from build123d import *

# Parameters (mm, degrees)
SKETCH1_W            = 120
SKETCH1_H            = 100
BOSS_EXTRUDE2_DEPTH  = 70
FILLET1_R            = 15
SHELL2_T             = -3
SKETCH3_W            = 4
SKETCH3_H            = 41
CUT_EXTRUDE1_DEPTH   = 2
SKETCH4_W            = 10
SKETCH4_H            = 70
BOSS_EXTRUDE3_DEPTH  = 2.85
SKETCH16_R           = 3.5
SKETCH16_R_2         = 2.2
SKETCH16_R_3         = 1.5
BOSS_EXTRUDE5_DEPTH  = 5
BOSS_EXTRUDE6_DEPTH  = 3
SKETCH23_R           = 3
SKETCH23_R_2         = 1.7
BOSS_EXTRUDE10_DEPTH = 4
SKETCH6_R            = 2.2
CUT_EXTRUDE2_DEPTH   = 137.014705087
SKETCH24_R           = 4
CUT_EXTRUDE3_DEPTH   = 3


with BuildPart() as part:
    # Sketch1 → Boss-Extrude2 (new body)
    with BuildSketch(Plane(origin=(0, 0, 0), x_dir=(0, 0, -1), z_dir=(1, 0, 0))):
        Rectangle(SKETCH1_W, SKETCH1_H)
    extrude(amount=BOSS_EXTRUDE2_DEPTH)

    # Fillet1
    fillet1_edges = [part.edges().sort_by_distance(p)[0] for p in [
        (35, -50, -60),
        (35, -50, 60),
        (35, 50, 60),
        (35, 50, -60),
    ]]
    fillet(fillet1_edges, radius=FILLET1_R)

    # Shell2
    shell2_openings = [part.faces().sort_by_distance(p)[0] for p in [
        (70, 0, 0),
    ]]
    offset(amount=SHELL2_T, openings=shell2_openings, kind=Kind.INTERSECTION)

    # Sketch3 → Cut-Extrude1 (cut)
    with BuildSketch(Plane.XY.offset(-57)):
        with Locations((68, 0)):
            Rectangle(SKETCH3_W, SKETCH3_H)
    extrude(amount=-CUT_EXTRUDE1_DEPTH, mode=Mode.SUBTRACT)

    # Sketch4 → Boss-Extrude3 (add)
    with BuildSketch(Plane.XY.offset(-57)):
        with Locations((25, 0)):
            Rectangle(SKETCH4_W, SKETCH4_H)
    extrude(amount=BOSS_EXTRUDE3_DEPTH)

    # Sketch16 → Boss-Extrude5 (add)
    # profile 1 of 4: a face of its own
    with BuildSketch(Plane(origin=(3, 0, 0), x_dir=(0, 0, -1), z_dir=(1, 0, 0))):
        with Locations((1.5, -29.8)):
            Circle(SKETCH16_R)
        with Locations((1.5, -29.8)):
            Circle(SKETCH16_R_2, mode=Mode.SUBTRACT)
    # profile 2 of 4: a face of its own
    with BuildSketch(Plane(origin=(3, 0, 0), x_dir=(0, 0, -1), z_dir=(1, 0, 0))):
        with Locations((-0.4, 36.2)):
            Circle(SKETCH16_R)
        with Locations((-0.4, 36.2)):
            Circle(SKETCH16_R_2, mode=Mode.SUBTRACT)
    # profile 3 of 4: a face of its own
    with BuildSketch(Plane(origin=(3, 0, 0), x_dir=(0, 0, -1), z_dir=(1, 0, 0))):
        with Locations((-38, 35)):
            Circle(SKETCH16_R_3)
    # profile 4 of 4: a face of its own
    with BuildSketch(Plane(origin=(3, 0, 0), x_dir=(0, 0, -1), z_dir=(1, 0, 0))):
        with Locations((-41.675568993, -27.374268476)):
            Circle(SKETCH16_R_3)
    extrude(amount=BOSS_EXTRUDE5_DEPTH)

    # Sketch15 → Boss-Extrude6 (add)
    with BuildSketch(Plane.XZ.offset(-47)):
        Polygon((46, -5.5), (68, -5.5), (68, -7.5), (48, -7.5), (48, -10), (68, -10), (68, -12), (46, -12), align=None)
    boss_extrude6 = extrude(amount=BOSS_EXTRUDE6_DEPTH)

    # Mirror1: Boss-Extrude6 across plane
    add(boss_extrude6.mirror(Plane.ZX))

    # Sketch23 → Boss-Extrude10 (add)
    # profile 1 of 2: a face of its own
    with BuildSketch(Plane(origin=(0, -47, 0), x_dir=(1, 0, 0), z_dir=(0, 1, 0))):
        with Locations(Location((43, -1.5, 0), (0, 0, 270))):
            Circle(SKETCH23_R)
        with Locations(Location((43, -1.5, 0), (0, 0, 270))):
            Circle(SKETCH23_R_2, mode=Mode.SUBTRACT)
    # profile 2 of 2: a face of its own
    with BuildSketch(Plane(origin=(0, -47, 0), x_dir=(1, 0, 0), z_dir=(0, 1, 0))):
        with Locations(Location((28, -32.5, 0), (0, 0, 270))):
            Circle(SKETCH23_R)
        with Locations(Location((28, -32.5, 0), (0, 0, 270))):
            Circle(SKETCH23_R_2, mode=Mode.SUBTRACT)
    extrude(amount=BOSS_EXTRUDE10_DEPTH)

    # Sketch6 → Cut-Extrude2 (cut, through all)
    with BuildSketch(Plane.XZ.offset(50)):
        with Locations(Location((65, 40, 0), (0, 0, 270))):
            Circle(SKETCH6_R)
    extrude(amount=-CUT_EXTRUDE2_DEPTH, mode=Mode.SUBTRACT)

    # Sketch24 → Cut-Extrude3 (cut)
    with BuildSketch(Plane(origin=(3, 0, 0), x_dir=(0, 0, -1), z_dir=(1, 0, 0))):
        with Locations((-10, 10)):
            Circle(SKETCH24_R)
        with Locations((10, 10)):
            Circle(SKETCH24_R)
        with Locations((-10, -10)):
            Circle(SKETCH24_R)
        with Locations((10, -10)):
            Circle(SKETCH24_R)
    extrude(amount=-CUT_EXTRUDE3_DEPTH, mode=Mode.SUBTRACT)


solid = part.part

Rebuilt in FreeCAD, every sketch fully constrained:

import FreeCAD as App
import Part
import Sketcher

V = App.Vector
Q = App.Units.Quantity


def edges_at(feature, points):
    """Names of the edges that pass closest to the given points."""
    edges = feature.Shape.Edges
    near = lambda p: min(range(len(edges)), key=lambda i: edges[i].distToShape(Part.Vertex(*p))[0])
    return sorted({f"Edge{near(p) + 1}" for p in points})


def faces_at(feature, points):
    """Names of the faces that lie closest to the given points."""
    faces = feature.Shape.Faces
    near = lambda p: min(range(len(faces)), key=lambda i: faces[i].distToShape(Part.Vertex(*p))[0])
    return sorted({f"Face{near(p) + 1}" for p in points})


def add_polygon(sketch, points):
    """Adds a closed chain of lines whose ends are joined by coincident constraints."""
    first, n = sketch.GeometryCount, len(points)
    for a, b in zip(points, points[1:] + points[:1]):
        sketch.addGeometry(Part.LineSegment(App.Vector(*a, 0), App.Vector(*b, 0)), False)
    for i in range(n):
        sketch.addConstraint(Sketcher.Constraint("Coincident", first + i, 2, first + (i + 1) % n, 1))

doc = App.newDocument("Part")
body = doc.addObject("PartDesign::Body", "Body")

# Sketch on YZ plane
sketch1 = body.newObject("Sketcher::SketchObject", "Sketch")
sketch1.AttachmentSupport = (doc.getObject("YZ_Plane"), [""])
sketch1.MapMode = "FlatFace"
add_polygon(sketch1, [(50, 60), (-50, 60), (-50, -60), (50, -60)])  # lines 0-3
sketch1.addConstraint([
    Sketcher.Constraint("Horizontal", 0),
    Sketcher.Constraint("Vertical", 1),
    Sketcher.Constraint("Horizontal", 2),
    Sketcher.Constraint("Vertical", 3),
    Sketcher.Constraint("Symmetric", 0, 2, 2, 2, -1, 1),
    Sketcher.Constraint("DistanceX", 0, 2, 0, 1, Q("100 mm")),
    Sketcher.Constraint("DistanceY", 1, 2, 1, 1, Q("120 mm")),
])
pad1 = body.newObject("PartDesign::Pad", "Pad")
pad1.Profile = sketch1
pad1.Length = 70
doc.recompute()

fillet = body.newObject("PartDesign::Fillet", "Fillet")
fillet.Base = (pad1, edges_at(pad1, [
    (35, -50, -60),
    (35, -50, 60),
    (35, 50, 60),
    (35, 50, -60),
]))
fillet.Radius = 15
doc.recompute()

thickness = body.newObject("PartDesign::Thickness", "Thickness")
thickness.Base = (fillet, faces_at(fillet, [(70, 0, 0)]))
thickness.Value = 3
thickness.Reversed = True
thickness.Join = "Intersection"

# Sketch on XY plane
sketch2 = body.newObject("Sketcher::SketchObject", "Sketch001")
sketch2.AttachmentSupport = (doc.getObject("XY_Plane"), [""])
sketch2.MapMode = "FlatFace"
sketch2.AttachmentOffset = App.Placement(V(0, 0, -57), App.Rotation())
add_polygon(sketch2, [(66, 20.5), (66, -20.5), (70, -20.5), (70, 20.5)])  # lines 0-3
sketch2.addConstraint([
    Sketcher.Constraint("Vertical", 0),
    Sketcher.Constraint("Horizontal", 1),
    Sketcher.Constraint("Vertical", 2),
    Sketcher.Constraint("Horizontal", 3),
    Sketcher.Constraint("DistanceX", 1, 1, 1, 2, Q("4 mm")),
    Sketcher.Constraint("DistanceY", 0, 2, 0, 1, Q("41 mm")),
    Sketcher.Constraint("DistanceX", -1, 1, 0, 2, Q("66 mm")),
    Sketcher.Constraint("DistanceY", 0, 2, -1, 1, Q("20.5 mm")),
])
pocket1 = body.newObject("PartDesign::Pocket", "Pocket")
pocket1.Profile = sketch2
pocket1.Length = 2

# Sketch on XY plane
sketch3 = body.newObject("Sketcher::SketchObject", "Sketch002")
sketch3.AttachmentSupport = (doc.getObject("XY_Plane"), [""])
sketch3.MapMode = "FlatFace"
sketch3.AttachmentOffset = App.Placement(V(0, 0, -57), App.Rotation())
add_polygon(sketch3, [(20, 35), (20, -35), (30, -35), (30, 35)])  # lines 0-3
sketch3.addConstraint([
    Sketcher.Constraint("Vertical", 0),
    Sketcher.Constraint("Horizontal", 1),
    Sketcher.Constraint("Vertical", 2),
    Sketcher.Constraint("Horizontal", 3),
    Sketcher.Constraint("DistanceX", 1, 1, 1, 2, Q("10 mm")),
    Sketcher.Constraint("DistanceY", 0, 2, 0, 1, Q("70 mm")),
    Sketcher.Constraint("DistanceX", -1, 1, 0, 2, Q("20 mm")),
    Sketcher.Constraint("DistanceY", 0, 2, -1, 1, Q("35 mm")),
])
pad2 = body.newObject("PartDesign::Pad", "Pad001")
pad2.Profile = sketch3
pad2.Length = 2.85

# Sketch on YZ plane
sketch4 = body.newObject("Sketcher::SketchObject", "Sketch003")
sketch4.AttachmentSupport = (doc.getObject("YZ_Plane"), [""])
sketch4.MapMode = "FlatFace"
sketch4.AttachmentOffset = App.Placement(V(0, 0, 3), App.Rotation())
sketch4.addGeometry([
    Part.Circle(V(-29.8, -1.5, 0), V(0, 0, 1), 3.5),  # 0
    Part.Circle(V(-29.8, -1.5, 0), V(0, 0, 1), 2.2),  # 1
    Part.Circle(V(36.2, 0.4, 0), V(0, 0, 1), 3.5),  # 2
    Part.Circle(V(36.2, 0.4, 0), V(0, 0, 1), 2.2),  # 3
    Part.Circle(V(35, 38, 0), V(0, 0, 1), 1.5),  # 4
    Part.Circle(V(-27.374268, 41.675569, 0), V(0, 0, 1), 1.5),  # 5
], False)
sketch4.addConstraint([
    Sketcher.Constraint("Coincident", 1, 3, 0, 3),
    Sketcher.Constraint("Coincident", 3, 3, 2, 3),
    Sketcher.Constraint("Equal", 0, 2),
    Sketcher.Constraint("Equal", 1, 3),
    Sketcher.Constraint("Equal", 4, 5),
    Sketcher.Constraint("Diameter", 0, Q("7 mm")),
    Sketcher.Constraint("Diameter", 4, Q("3 mm")),
    Sketcher.Constraint("Diameter", 1, Q("4.4 mm")),
    Sketcher.Constraint("DistanceX", -1, 1, 4, 3, Q("35 mm")),
    Sketcher.Constraint("DistanceY", -1, 1, 4, 3, Q("38 mm")),
    Sketcher.Constraint("DistanceX", 0, 3, 2, 3, Q("66 mm")),
    Sketcher.Constraint("DistanceX", 0, 3, -1, 1, Q("29.8 mm")),
    Sketcher.Constraint("DistanceY", 0, 3, -1, 1, Q("1.5 mm")),
    Sketcher.Constraint("DistanceY", -1, 1, 2, 3, Q("0.4 mm")),
    Sketcher.Constraint("DistanceX", 5, 3, -1, 1, Q("27.374268 mm")),
    Sketcher.Constraint("DistanceY", -1, 1, 5, 3, Q("41.675569 mm")),
])
pad3 = body.newObject("PartDesign::Pad", "Pad002")
pad3.Profile = sketch4
pad3.Length = 5

# Sketch on XZ plane
sketch5 = body.newObject("Sketcher::SketchObject", "Sketch004")
sketch5.AttachmentSupport = (doc.getObject("XZ_Plane"), [""])
sketch5.MapMode = "FlatFace"
sketch5.AttachmentOffset = App.Placement(V(0, 0, -47), App.Rotation())
add_polygon(sketch5, [(68, -5.5), (46, -5.5), (46, -12), (68, -12), (68, -10), (48, -10), (48, -7.5), (68, -7.5)])  # lines 0-7
sketch5.addConstraint([
    Sketcher.Constraint("Horizontal", 0),
    Sketcher.Constraint("Vertical", 1),
    Sketcher.Constraint("Horizontal", 2),
    Sketcher.Constraint("Vertical", 3),
    Sketcher.Constraint("Horizontal", 4),
    Sketcher.Constraint("Vertical", 5),
    Sketcher.Constraint("Horizontal", 6),
    Sketcher.Constraint("Vertical", 7),
    Sketcher.Constraint("Vertical", 3, 2, 6, 2),
    Sketcher.Constraint("Equal", 3, 7),
    Sketcher.Constraint("DistanceX", 0, 2, 0, 1, Q("22 mm")),
    Sketcher.Constraint("DistanceX", 4, 2, 4, 1, Q("20 mm")),
    Sketcher.Constraint("DistanceY", 3, 1, 3, 2, Q("2 mm")),
    Sketcher.Constraint("DistanceY", 1, 2, 1, 1, Q("6.5 mm")),
    Sketcher.Constraint("DistanceX", -1, 1, 0, 2, Q("46 mm")),
    Sketcher.Constraint("DistanceY", 1, 2, -1, 1, Q("12 mm")),
])
pad4 = body.newObject("PartDesign::Pad", "Pad003")
pad4.Profile = sketch5
pad4.Length = 3
doc.recompute()

mirrored = body.newObject("PartDesign::Mirrored", "Mirrored")
mirrored.Originals = [pad4]
mirrored.MirrorPlane = (doc.getObject("XZ_Plane"), [""])
body.Tip = mirrored

# Sketch on XZ plane
sketch6 = body.newObject("Sketcher::SketchObject", "Sketch005")
sketch6.AttachmentSupport = (doc.getObject("XZ_Plane"), [""])
sketch6.MapMode = "FlatFace"
sketch6.AttachmentOffset = App.Placement(V(0, 0, 47), App.Rotation())
sketch6.addGeometry([
    Part.Circle(V(43, 1.5, 0), V(0, 0, 1), 3),
    Part.Circle(V(43, 1.5, 0), V(0, 0, 1), 1.7),
    Part.Circle(V(28, 32.5, 0), V(0, 0, 1), 3),
    Part.Circle(V(28, 32.5, 0), V(0, 0, 1), 1.7),
], False)
sketch6.addConstraint([
    Sketcher.Constraint("Coincident", 1, 3, 0, 3),
    Sketcher.Constraint("Coincident", 3, 3, 2, 3),
    Sketcher.Constraint("Equal", 0, 2),
    Sketcher.Constraint("Equal", 1, 3),
    Sketcher.Constraint("Diameter", 0, Q("6 mm")),
    Sketcher.Constraint("Diameter", 1, Q("3.4 mm")),
    Sketcher.Constraint("DistanceX", -1, 1, 0, 3, Q("43 mm")),
    Sketcher.Constraint("DistanceX", -1, 1, 2, 3, Q("28 mm")),
    Sketcher.Constraint("DistanceY", 0, 3, 2, 3, Q("31 mm")),
    Sketcher.Constraint("DistanceY", -1, 1, 0, 3, Q("1.5 mm")),
])
pad5 = body.newObject("PartDesign::Pad", "Pad004")
pad5.Profile = sketch6
pad5.Length = 4
pad5.Reversed = True

# Sketch on XZ plane
sketch7 = body.newObject("Sketcher::SketchObject", "Sketch006")
sketch7.AttachmentSupport = (doc.getObject("XZ_Plane"), [""])
sketch7.MapMode = "FlatFace"
sketch7.AttachmentOffset = App.Placement(V(0, 0, 50), App.Rotation())
sketch7.addGeometry(Part.Circle(V(65, 40, 0), V(0, 0, 1), 2.2), False)
sketch7.addConstraint([
    Sketcher.Constraint("Diameter", 0, Q("4.4 mm")),
    Sketcher.Constraint("DistanceX", -1, 1, 0, 3, Q("65 mm")),
    Sketcher.Constraint("DistanceY", -1, 1, 0, 3, Q("40 mm")),
])
pocket2 = body.newObject("PartDesign::Pocket", "Pocket001")
pocket2.Profile = sketch7
pocket2.Type = "ThroughAll"

# Sketch on YZ plane
sketch8 = body.newObject("Sketcher::SketchObject", "Sketch007")
sketch8.AttachmentSupport = (doc.getObject("YZ_Plane"), [""])
sketch8.MapMode = "FlatFace"
sketch8.AttachmentOffset = App.Placement(V(0, 0, 3), App.Rotation())
sketch8.addGeometry([
    Part.Circle(V(10, 10, 0), V(0, 0, 1), 4),
    Part.Circle(V(10, -10, 0), V(0, 0, 1), 4),
    Part.Circle(V(-10, 10, 0), V(0, 0, 1), 4),
    Part.Circle(V(-10, -10, 0), V(0, 0, 1), 4),
], False)
sketch8.addConstraint([
    Sketcher.Constraint("Equal", 0, 1),
    Sketcher.Constraint("Equal", 1, 2),
    Sketcher.Constraint("Equal", 2, 3),
    Sketcher.Constraint("Symmetric", 1, 3, 2, 3, -1, 1),
    Sketcher.Constraint("Symmetric", 0, 3, 3, 3, -1, 1),
    Sketcher.Constraint("Symmetric", 0, 3, 2, 3, -2),
    Sketcher.Constraint("Diameter", 0, Q("8 mm")),
    Sketcher.Constraint("DistanceX", -1, 1, 0, 3, Q("10 mm")),
    Sketcher.Constraint("DistanceY", -1, 1, 0, 3, Q("10 mm")),
])
pocket3 = body.newObject("PartDesign::Pocket", "Pocket002")
pocket3.Profile = sketch8
pocket3.Length = 3

doc.recompute()
